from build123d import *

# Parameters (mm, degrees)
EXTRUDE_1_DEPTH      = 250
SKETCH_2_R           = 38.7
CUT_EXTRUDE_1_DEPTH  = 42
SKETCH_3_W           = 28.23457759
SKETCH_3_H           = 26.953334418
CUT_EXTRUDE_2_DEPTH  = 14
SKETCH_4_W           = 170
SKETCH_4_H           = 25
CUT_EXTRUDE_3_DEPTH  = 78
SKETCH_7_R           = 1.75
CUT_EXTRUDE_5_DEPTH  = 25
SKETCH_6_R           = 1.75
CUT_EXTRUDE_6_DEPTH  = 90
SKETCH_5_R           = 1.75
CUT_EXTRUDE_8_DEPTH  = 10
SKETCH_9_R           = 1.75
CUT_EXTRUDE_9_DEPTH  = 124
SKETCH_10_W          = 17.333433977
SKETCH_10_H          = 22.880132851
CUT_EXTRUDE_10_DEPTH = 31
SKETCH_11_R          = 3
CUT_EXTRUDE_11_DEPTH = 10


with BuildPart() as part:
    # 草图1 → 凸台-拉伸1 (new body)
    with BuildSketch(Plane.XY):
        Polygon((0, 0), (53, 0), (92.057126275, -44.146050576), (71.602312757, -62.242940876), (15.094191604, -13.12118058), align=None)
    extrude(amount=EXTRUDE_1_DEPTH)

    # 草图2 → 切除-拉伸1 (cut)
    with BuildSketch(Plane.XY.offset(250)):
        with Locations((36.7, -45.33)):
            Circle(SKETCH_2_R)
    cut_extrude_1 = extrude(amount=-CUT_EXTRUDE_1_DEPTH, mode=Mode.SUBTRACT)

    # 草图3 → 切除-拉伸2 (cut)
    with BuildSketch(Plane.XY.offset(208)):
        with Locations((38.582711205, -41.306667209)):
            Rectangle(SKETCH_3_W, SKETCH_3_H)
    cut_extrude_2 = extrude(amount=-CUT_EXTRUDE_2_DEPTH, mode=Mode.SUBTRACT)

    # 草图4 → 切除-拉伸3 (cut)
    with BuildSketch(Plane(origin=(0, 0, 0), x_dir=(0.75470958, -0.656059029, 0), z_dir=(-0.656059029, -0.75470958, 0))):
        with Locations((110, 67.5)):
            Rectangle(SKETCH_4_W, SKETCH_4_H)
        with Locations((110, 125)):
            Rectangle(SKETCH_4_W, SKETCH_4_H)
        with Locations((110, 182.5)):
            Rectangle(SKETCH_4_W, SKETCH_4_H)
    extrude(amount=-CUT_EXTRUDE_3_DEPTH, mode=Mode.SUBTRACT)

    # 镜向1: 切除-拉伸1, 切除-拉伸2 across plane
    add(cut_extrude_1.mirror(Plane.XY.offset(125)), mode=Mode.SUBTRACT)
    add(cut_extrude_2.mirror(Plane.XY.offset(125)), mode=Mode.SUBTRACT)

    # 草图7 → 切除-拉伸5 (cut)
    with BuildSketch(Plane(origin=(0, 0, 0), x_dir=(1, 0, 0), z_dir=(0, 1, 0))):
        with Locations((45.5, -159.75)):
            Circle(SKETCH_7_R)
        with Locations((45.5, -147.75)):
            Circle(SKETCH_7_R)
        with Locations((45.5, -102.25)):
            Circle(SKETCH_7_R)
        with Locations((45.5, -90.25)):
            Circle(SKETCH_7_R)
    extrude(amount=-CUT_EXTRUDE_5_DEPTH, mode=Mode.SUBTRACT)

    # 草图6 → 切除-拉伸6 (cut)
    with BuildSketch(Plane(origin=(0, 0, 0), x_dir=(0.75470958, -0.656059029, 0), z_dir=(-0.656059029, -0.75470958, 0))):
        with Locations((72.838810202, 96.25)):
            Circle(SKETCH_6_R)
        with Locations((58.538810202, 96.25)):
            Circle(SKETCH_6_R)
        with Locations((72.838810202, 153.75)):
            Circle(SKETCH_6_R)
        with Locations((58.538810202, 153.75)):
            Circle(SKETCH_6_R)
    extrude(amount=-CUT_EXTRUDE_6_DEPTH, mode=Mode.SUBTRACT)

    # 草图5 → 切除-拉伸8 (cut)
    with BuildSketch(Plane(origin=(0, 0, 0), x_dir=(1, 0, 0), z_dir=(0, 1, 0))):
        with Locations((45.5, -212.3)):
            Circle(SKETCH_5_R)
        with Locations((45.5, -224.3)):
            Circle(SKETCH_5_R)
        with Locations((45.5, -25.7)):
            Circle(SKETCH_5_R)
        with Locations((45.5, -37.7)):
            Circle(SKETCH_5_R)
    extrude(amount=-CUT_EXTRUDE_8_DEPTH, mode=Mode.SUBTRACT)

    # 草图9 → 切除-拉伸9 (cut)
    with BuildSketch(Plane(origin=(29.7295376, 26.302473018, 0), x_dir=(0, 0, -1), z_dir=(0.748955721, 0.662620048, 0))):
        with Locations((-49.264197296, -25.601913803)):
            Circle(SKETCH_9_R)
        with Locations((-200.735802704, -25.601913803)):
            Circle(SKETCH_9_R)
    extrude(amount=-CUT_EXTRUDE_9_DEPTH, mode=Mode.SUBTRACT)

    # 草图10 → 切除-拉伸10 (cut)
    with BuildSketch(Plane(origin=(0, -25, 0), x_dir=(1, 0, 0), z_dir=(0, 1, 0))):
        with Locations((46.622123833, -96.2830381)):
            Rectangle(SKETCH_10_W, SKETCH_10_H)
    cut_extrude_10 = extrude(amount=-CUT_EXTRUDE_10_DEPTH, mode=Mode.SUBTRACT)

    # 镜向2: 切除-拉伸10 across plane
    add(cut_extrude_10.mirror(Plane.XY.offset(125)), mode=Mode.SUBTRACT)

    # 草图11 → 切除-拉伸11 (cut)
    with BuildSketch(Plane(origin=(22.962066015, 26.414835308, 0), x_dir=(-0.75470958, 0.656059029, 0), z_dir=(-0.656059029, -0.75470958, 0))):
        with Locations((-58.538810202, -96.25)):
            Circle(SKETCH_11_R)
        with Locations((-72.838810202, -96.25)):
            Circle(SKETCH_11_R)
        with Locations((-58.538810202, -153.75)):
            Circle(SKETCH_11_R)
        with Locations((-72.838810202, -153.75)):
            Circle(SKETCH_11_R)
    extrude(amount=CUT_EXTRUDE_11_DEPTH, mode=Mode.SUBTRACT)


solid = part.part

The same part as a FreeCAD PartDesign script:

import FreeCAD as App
import Part
import Sketcher

V = App.Vector
Q = App.Units.Quantity

doc = App.newDocument("Part")
body = doc.addObject("PartDesign::Body", "Body")

# Sketch on XY plane
sketch1 = body.newObject("Sketcher::SketchObject", "Sketch")
sketch1.AttachmentSupport = (doc.getObject("XY_Plane"), [""])
sketch1.MapMode = "FlatFace"
sketch1.addGeometry(Part.LineSegment(V(53, 0, 0), V(0, 0, 0)), False)
sketch1.addGeometry(Part.LineSegment(V(0, 0, 0), V(15.094192, -13.121181, 0)), False)
sketch1.addGeometry(Part.LineSegment(V(15.094192, -13.121181, 0), V(71.602313, -62.242941, 0)), False)
sketch1.addGeometry(Part.LineSegment(V(71.602313, -62.242941, 0), V(92.057126, -44.146051, 0)), False)
sketch1.addGeometry(Part.LineSegment(V(92.057126, -44.146051, 0), V(53, 0, 0)), False)
sketch1.addConstraint(Sketcher.Constraint("Coincident", 0, 2, 1, 1))
sketch1.addConstraint(Sketcher.Constraint("Coincident", 1, 2, 2, 1))
sketch1.addConstraint(Sketcher.Constraint("Coincident", 2, 2, 3, 1))
sketch1.addConstraint(Sketcher.Constraint("Coincident", 3, 2, 4, 1))
sketch1.addConstraint(Sketcher.Constraint("Coincident", 4, 2, 0, 1))
sketch1.addConstraint(Sketcher.Constraint("Horizontal", 0))
sketch1.addConstraint(Sketcher.Constraint("Coincident", 0, 2, -1, 1))
sketch1.addConstraint(Sketcher.Constraint("Parallel", 1, 2))
sketch1.addConstraint(Sketcher.Constraint("Perpendicular", 3, 4))
sketch1.addConstraint(Sketcher.Constraint("DistanceX", 0, 2, 0, 1, 53.0))
sketch1.addConstraint(Sketcher.Constraint("Angle", 1, Q("-41 deg")))
sketch1.addConstraint(Sketcher.Constraint("Distance", 1, 20.0))
sketch1.addConstraint(Sketcher.Constraint("Angle", 3, Q("41.5 deg")))
sketch1.addConstraint(Sketcher.Constraint("Distance", 3, 27.311112))
pad1 = body.newObject("PartDesign::Pad", "Pad")
pad1.Profile = sketch1
pad1.Length = 250

# Sketch on XY plane
sketch2 = body.newObject("Sketcher::SketchObject", "Sketch001")
sketch2.AttachmentSupport = (doc.getObject("XY_Plane"), [""])
sketch2.MapMode = "FlatFace"
sketch2.AttachmentOffset = App.Placement(V(0, 0, 250), App.Rotation())
sketch2.addGeometry(Part.Circle(V(36.7, -45.33, 0), V(0, 0, 1), 38.7), False)
sketch2.addConstraint(Sketcher.Constraint("Diameter", 0, 77.4))
sketch2.addConstraint(Sketcher.Constraint("DistanceX", -1, 1, 0, 3, 36.7))
sketch2.addConstraint(Sketcher.Constraint("DistanceY", 0, 3, -1, 1, 45.33))
pocket1 = body.newObject("PartDesign::Pocket", "Pocket")
pocket1.Profile = sketch2
pocket1.Length = 42

# Sketch on XY plane
sketch3 = body.newObject("Sketcher::SketchObject", "Sketch002")
sketch3.AttachmentSupport = (doc.getObject("XY_Plane"), [""])
sketch3.MapMode = "FlatFace"
sketch3.AttachmentOffset = App.Placement(V(0, 0, 208), App.Rotation())
sketch3.addGeometry(Part.LineSegment(V(24.465422, -27.83, 0), V(24.465422, -54.783334, 0)), False)
sketch3.addGeometry(Part.LineSegment(V(24.465422, -54.783334, 0), V(52.7, -54.783334, 0)), False)
sketch3.addGeometry(Part.LineSegment(V(52.7, -54.783334, 0), V(52.7, -27.83, 0)), False)
sketch3.addGeometry(Part.LineSegment(V(52.7, -27.83, 0), V(24.465422, -27.83, 0)), False)
sketch3.addConstraint(Sketcher.Constraint("Coincident", 0, 2, 1, 1))
sketch3.addConstraint(Sketcher.Constraint("Coincident", 1, 2, 2, 1))
sketch3.addConstraint(Sketcher.Constraint("Coincident", 2, 2, 3, 1))
sketch3.addConstraint(Sketcher.Constraint("Coincident", 3, 2, 0, 1))
sketch3.addConstraint(Sketcher.Constraint("Vertical", 0))
sketch3.addConstraint(Sketcher.Constraint("Horizontal", 1))
sketch3.addConstraint(Sketcher.Constraint("Vertical", 2))
sketch3.addConstraint(Sketcher.Constraint("Horizontal", 3))
sketch3.addConstraint(Sketcher.Constraint("DistanceX", -1, 1, 1, 2, 52.7))
sketch3.addConstraint(Sketcher.Constraint("DistanceY", 2, 2, -1, 1, 27.83))
sketch3.addConstraint(Sketcher.Constraint("DistanceX", 1, 1, 1, 2, 28.234578))
sketch3.addConstraint(Sketcher.Constraint("DistanceY", 0, 2, 0, 1, 26.953334))
pocket2 = body.newObject("PartDesign::Pocket", "Pocket001")
pocket2.Profile = sketch3
pocket2.Length = 14

# Sketch on an angled plane
sketch4 = body.newObject("Sketcher::SketchObject", "Sketch003")
sketch4.Placement = App.Placement(V(0, 0, 0), App.Rotation(V(0.75470958, -0.656059029, 0), V(0, 0, 1), V(-0.656059029, -0.75470958, 0), "ZXY"))
sketch4.addGeometry(Part.LineSegment(V(25, 80, 0), V(25, 55, 0)), False)
sketch4.addGeometry(Part.LineSegment(V(25, 55, 0), V(195, 55, 0)), False)
sketch4.addGeometry(Part.LineSegment(V(195, 55, 0), V(195, 80, 0)), False)
sketch4.addGeometry(Part.LineSegment(V(195, 80, 0), V(25, 80, 0)), False)
sketch4.addGeometry(Part.LineSegment(V(25, 137.5, 0), V(25, 112.5, 0)), False)
sketch4.addGeometry(Part.LineSegment(V(25, 112.5, 0), V(195, 112.5, 0)), False)
sketch4.addGeometry(Part.LineSegment(V(195, 112.5, 0), V(195, 137.5, 0)), False)
sketch4.addGeometry(Part.LineSegment(V(195, 137.5, 0), V(25, 137.5, 0)), False)
sketch4.addGeometry(Part.LineSegment(V(25, 195, 0), V(25, 170, 0)), False)
sketch4.addGeometry(Part.LineSegment(V(25, 170, 0), V(195, 170, 0)), False)
sketch4.addGeometry(Part.LineSegment(V(195, 170, 0), V(195, 195, 0)), False)
sketch4.addGeometry(Part.LineSegment(V(195, 195, 0), V(25, 195, 0)), False)
sketch4.addConstraint(Sketcher.Constraint("Coincident", 0, 2, 1, 1))
sketch4.addConstraint(Sketcher.Constraint("Coincident", 1, 2, 2, 1))
sketch4.addConstraint(Sketcher.Constraint("Coincident", 2, 2, 3, 1))
sketch4.addConstraint(Sketcher.Constraint("Coincident", 3, 2, 0, 1))
sketch4.addConstraint(Sketcher.Constraint("Coincident", 4, 2, 5, 1))
sketch4.addConstraint(Sketcher.Constraint("Coincident", 5, 2, 6, 1))
sketch4.addConstraint(Sketcher.Constraint("Coincident", 6, 2, 7, 1))
sketch4.addConstraint(Sketcher.Constraint("Coincident", 7, 2, 4, 1))
sketch4.addConstraint(Sketcher.Constraint("Coincident", 8, 2, 9, 1))
sketch4.addConstraint(Sketcher.Constraint("Coincident", 9, 2, 10, 1))
sketch4.addConstraint(Sketcher.Constraint("Coincident", 10, 2, 11, 1))
sketch4.addConstraint(Sketcher.Constraint("Coincident", 11, 2, 8, 1))
sketch4.addConstraint(Sketcher.Constraint("Vertical", 0))
sketch4.addConstraint(Sketcher.Constraint("Horizontal", 1))
sketch4.addConstraint(Sketcher.Constraint("Vertical", 2))
sketch4.addConstraint(Sketcher.Constraint("Horizontal", 3))
sketch4.addConstraint(Sketcher.Constraint("Vertical", 4))
sketch4.addConstraint(Sketcher.Constraint("Horizontal", 5))
sketch4.addConstraint(Sketcher.Constraint("Vertical", 6))
sketch4.addConstraint(Sketcher.Constraint("Horizontal", 7))
sketch4.addConstraint(Sketcher.Constraint("Vertical", 8))
sketch4.addConstraint(Sketcher.Constraint("Horizontal", 9))
sketch4.addConstraint(Sketcher.Constraint("Vertical", 10))
sketch4.addConstraint(Sketcher.Constraint("Horizontal", 11))
sketch4.addConstraint(Sketcher.Constraint("Vertical", 3, 2, 4, 2))
sketch4.addConstraint(Sketcher.Constraint("Vertical", 2, 2, 5, 2))
sketch4.addConstraint(Sketcher.Constraint("Vertical", 7, 2, 8, 2))
sketch4.addConstraint(Sketcher.Constraint("Vertical", 6, 2, 9, 2))
sketch4.addConstraint(Sketcher.Constraint("Equal", 2, 4))
sketch4.addConstraint(Sketcher.Constraint("Equal", 6, 8))
sketch4.addConstraint(Sketcher.Constraint("DistanceX", 1, 1, 1, 2, 170.0))
sketch4.addConstraint(Sketcher.Constraint("DistanceY", 0, 2, 0, 1, 25.0))
sketch4.addConstraint(Sketcher.Constraint("DistanceX", -1, 1, 0, 2, 25.0))
sketch4.addConstraint(Sketcher.Constraint("DistanceY", -1, 1, 0, 2, 55.0))
sketch4.addConstraint(Sketcher.Constraint("DistanceY", -1, 1, 8, 2, 170.0))
sketch4.addConstraint(Sketcher.Constraint("DistanceY", -1, 1, 4, 2, 112.5))
pocket3 = body.newObject("PartDesign::Pocket", "Pocket002")
pocket3.Profile = sketch4
pocket3.Length = 78
doc.recompute()

datumplane = body.newObject("PartDesign::Plane", "DatumPlane")
datumplane.AttachmentSupport = (doc.getObject("XY_Plane"), [""])
datumplane.MapMode = "FlatFace"
datumplane.AttachmentOffset = App.Placement(V(0, 0, 125), App.Rotation())
mirrored = body.newObject("PartDesign::Mirrored", "Mirrored")
mirrored.Originals = [pocket1, pocket2]
mirrored.MirrorPlane = (datumplane, [""])
body.Tip = mirrored

# Sketch on XZ plane
sketch5 = body.newObject("Sketcher::SketchObject", "Sketch004")
sketch5.AttachmentSupport = (doc.getObject("XZ_Plane"), [""])
sketch5.MapMode = "FlatFace"
sketch5.addGeometry(Part.Circle(V(45.5, 159.75, 0), V(0, 0, 1), 1.75), False)
sketch5.addGeometry(Part.Circle(V(45.5, 147.75, 0), V(0, 0, 1), 1.75), False)
sketch5.addGeometry(Part.Circle(V(45.5, 102.25, 0), V(0, 0, 1), 1.75), False)
sketch5.addGeometry(Part.Circle(V(45.5, 90.25, 0), V(0, 0, 1), 1.75), False)
sketch5.addConstraint(Sketcher.Constraint("Equal", 0, 1))
sketch5.addConstraint(Sketcher.Constraint("Equal", 1, 2))
sketch5.addConstraint(Sketcher.Constraint("Equal", 2, 3))
sketch5.addConstraint(Sketcher.Constraint("Vertical", 0, 3, 1, 3))
sketch5.addConstraint(Sketcher.Constraint("Vertical", 1, 3, 2, 3))
sketch5.addConstraint(Sketcher.Constraint("Vertical", 2, 3, 3, 3))
sketch5.addConstraint(Sketcher.Constraint("Diameter", 0, 3.5))
sketch5.addConstraint(Sketcher.Constraint("DistanceY", 1, 3, 0, 3, 12.0))
sketch5.addConstraint(Sketcher.Constraint("DistanceY", 3, 3, 2, 3, 12.0))
sketch5.addConstraint(Sketcher.Constraint("DistanceX", -1, 1, 0, 3, 45.5))
sketch5.addConstraint(Sketcher.Constraint("DistanceY", 2, 3, 1, 3, 45.5))
sketch5.addConstraint(Sketcher.Constraint("DistanceY", -1, 1, 0, 3, 159.75))
pocket4 = body.newObject("PartDesign::Pocket", "Pocket003")
pocket4.Profile = sketch5
pocket4.Length = 25
pocket4.Reversed = True

# Sketch on an angled plane
sketch6 = body.newObject("Sketcher::SketchObject", "Sketch005")
sketch6.Placement = App.Placement(V(0, 0, 0), App.Rotation(V(0.75470958, -0.656059029, 0), V(0, 0, 1), V(-0.656059029, -0.75470958, 0), "ZXY"))
sketch6.addGeometry(Part.Circle(V(72.83881, 96.25, 0), V(0, 0, 1), 1.75), False)
sketch6.addGeometry(Part.Circle(V(58.53881, 96.25, 0), V(0, 0, 1), 1.75), False)
sketch6.addGeometry(Part.Circle(V(72.83881, 153.75, 0), V(0, 0, 1), 1.75), False)
sketch6.addGeometry(Part.Circle(V(58.53881, 153.75, 0), V(0, 0, 1), 1.75), False)
sketch6.addConstraint(Sketcher.Constraint("Equal", 0, 1))
sketch6.addConstraint(Sketcher.Constraint("Equal", 1, 2))
sketch6.addConstraint(Sketcher.Constraint("Equal", 2, 3))
sketch6.addConstraint(Sketcher.Constraint("Horizontal", 0, 3, 1, 3))
sketch6.addConstraint(Sketcher.Constraint("Horizontal", 2, 3, 3, 3))
sketch6.addConstraint(Sketcher.Constraint("Vertical", 0, 3, 2, 3))
sketch6.addConstraint(Sketcher.Constraint("Vertical", 1, 3, 3, 3))
sketch6.addConstraint(Sketcher.Constraint("Diameter", 0, 3.5))
sketch6.addConstraint(Sketcher.Constraint("DistanceX", 1, 3, 0, 3, 14.3))
sketch6.addConstraint(Sketcher.Constraint("DistanceY", 0, 3, 2, 3, 57.5))
sketch6.addConstraint(Sketcher.Constraint("DistanceY", -1, 1, 0, 3, 96.25))
sketch6.addConstraint(Sketcher.Constraint("DistanceX", -1, 1, 0, 3, 72.83881))
pocket5 = body.newObject("PartDesign::Pocket", "Pocket004")
pocket5.Profile = sketch6
pocket5.Length = 90

# Sketch on XZ plane
sketch7 = body.newObject("Sketcher::SketchObject", "Sketch006")
sketch7.AttachmentSupport = (doc.getObject("XZ_Plane"), [""])
sketch7.MapMode = "FlatFace"
sketch7.addGeometry(Part.Circle(V(45.5, 212.3, 0), V(0, 0, 1), 1.75), False)
sketch7.addGeometry(Part.Circle(V(45.5, 224.3, 0), V(0, 0, 1), 1.75), False)
sketch7.addGeometry(Part.Circle(V(45.5, 25.7, 0), V(0, 0, 1), 1.75), False)
sketch7.addGeometry(Part.Circle(V(45.5, 37.7, 0), V(0, 0, 1), 1.75), False)
sketch7.addConstraint(Sketcher.Constraint("Equal", 0, 1))
sketch7.addConstraint(Sketcher.Constraint("Equal", 1, 2))
sketch7.addConstraint(Sketcher.Constraint("Equal", 2, 3))
sketch7.addConstraint(Sketcher.Constraint("Vertical", 0, 3, 1, 3))
sketch7.addConstraint(Sketcher.Constraint("Vertical", 1, 3, 2, 3))
sketch7.addConstraint(Sketcher.Constraint("Vertical", 2, 3, 3, 3))
sketch7.addConstraint(Sketcher.Constraint("Diameter", 0, 3.5))
sketch7.addConstraint(Sketcher.Constraint("DistanceY", 0, 3, 1, 3, 12.0))
sketch7.addConstraint(Sketcher.Constraint("DistanceY", 2, 3, 3, 3, 12.0))
sketch7.addConstraint(Sketcher.Constraint("DistanceX", -1, 1, 0, 3, 45.5))
sketch7.addConstraint(Sketcher.Constraint("DistanceY", -1, 1, 0, 3, 212.3))
sketch7.addConstraint(Sketcher.Constraint("DistanceY", -1, 1, 2, 3, 25.7))
pocket6 = body.newObject("PartDesign::Pocket", "Pocket005")
pocket6.Profile = sketch7
pocket6.Length = 10
pocket6.Reversed = True

# Sketch on an angled plane
sketch8 = body.newObject("Sketcher::SketchObject", "Sketch007")
sketch8.Placement = App.Placement(V(29.729538, 26.302473, 0), App.Rotation(V(0, 0, -1), V(-0.662620048, 0.748955721, 0), V(0.748955721, 0.662620048, 0), "ZXY"))
sketch8.addGeometry(Part.Circle(V(-49.264197, -25.601914, 0), V(0, 0, 1), 1.75), False)
sketch8.addGeometry(Part.Circle(V(-200.735803, -25.601914, 0), V(0, 0, 1), 1.75), False)
sketch8.addConstraint(Sketcher.Constraint("Equal", 0, 1))
sketch8.addConstraint(Sketcher.Constraint("Horizontal", 0, 3, 1, 3))
sketch8.addConstraint(Sketcher.Constraint("Diameter", 0, 3.5))
sketch8.addConstraint(Sketcher.Constraint("DistanceX", 0, 3, -1, 1, 49.264197))
sketch8.addConstraint(Sketcher.Constraint("DistanceY", 0, 3, -1, 1, 25.601914))
sketch8.addConstraint(Sketcher.Constraint("DistanceX", 1, 3, -1, 1, 200.735803))
pocket7 = body.newObject("PartDesign::Pocket", "Pocket006")
pocket7.Profile = sketch8
pocket7.Length = 124

# Sketch on XZ plane
sketch9 = body.newObject("Sketcher::SketchObject", "Sketch008")
sketch9.AttachmentSupport = (doc.getObject("XZ_Plane"), [""])
sketch9.MapMode = "FlatFace"
sketch9.AttachmentOffset = App.Placement(V(0, 0, 25), App.Rotation())
sketch9.addGeometry(Part.LineSegment(V(37.955407, 84.842972, 0), V(37.955407, 107.723105, 0)), False)
sketch9.addGeometry(Part.LineSegment(V(37.955407, 107.723105, 0), V(55.288841, 107.723105, 0)), False)
sketch9.addGeometry(Part.LineSegment(V(55.288841, 107.723105, 0), V(55.288841, 84.842972, 0)), False)
sketch9.addGeometry(Part.LineSegment(V(55.288841, 84.842972, 0), V(37.955407, 84.842972, 0)), False)
sketch9.addConstraint(Sketcher.Constraint("Coincident", 0, 2, 1, 1))
sketch9.addConstraint(Sketcher.Constraint("Coincident", 1, 2, 2, 1))
sketch9.addConstraint(Sketcher.Constraint("Coincident", 2, 2, 3, 1))
sketch9.addConstraint(Sketcher.Constraint("Coincident", 3, 2, 0, 1))
sketch9.addConstraint(Sketcher.Constraint("Vertical", 0))
sketch9.addConstraint(Sketcher.Constraint("Horizontal", 1))
sketch9.addConstraint(Sketcher.Constraint("Vertical", 2))
sketch9.addConstraint(Sketcher.Constraint("Horizontal", 3))
sketch9.addConstraint(Sketcher.Constraint("DistanceX", 1, 1, 1, 2, 17.333434))
sketch9.addConstraint(Sketcher.Constraint("DistanceY", 0, 1, 0, 2, 22.880133))
sketch9.addConstraint(Sketcher.Constraint("DistanceX", -1, 1, 1, 2, 55.288841))
sketch9.addConstraint(Sketcher.Constraint("DistanceY", -1, 1, 2, 2, 84.842972))
pocket8 = body.newObject("PartDesign::Pocket", "Pocket007")
pocket8.Profile = sketch9
pocket8.Length = 31
pocket8.Reversed = True
doc.recompute()

datumplane2 = body.newObject("PartDesign::Plane", "DatumPlane001")
datumplane2.AttachmentSupport = (doc.getObject("XY_Plane"), [""])
datumplane2.MapMode = "FlatFace"
datumplane2.AttachmentOffset = App.Placement(V(0, 0, 125), App.Rotation())
mirrored2 = body.newObject("PartDesign::Mirrored", "Mirrored001")
mirrored2.Originals = [pocket8]
mirrored2.MirrorPlane = (datumplane2, [""])
body.Tip = mirrored2

# Sketch on an angled plane
sketch10 = body.newObject("Sketcher::SketchObject", "Sketch009")
sketch10.Placement = App.Placement(V(22.962066, 26.414835, 0), App.Rotation(V(-0.75470958, 0.656059029, 0), V(0, 0, -1), V(-0.656059029, -0.75470958, 0), "ZXY"))
sketch10.addGeometry(Part.Circle(V(-58.53881, -96.25, 0), V(0, 0, 1), 3), False)
sketch10.addGeometry(Part.Circle(V(-72.83881, -96.25, 0), V(0, 0, 1), 3), False)
sketch10.addGeometry(Part.Circle(V(-58.53881, -153.75, 0), V(0, 0, 1), 3), False)
sketch10.addGeometry(Part.Circle(V(-72.83881, -153.75, 0), V(0, 0, 1), 3), False)
sketch10.addConstraint(Sketcher.Constraint("Equal", 0, 1))
sketch10.addConstraint(Sketcher.Constraint("Equal", 1, 2))
sketch10.addConstraint(Sketcher.Constraint("Equal", 2, 3))
sketch10.addConstraint(Sketcher.Constraint("Horizontal", 0, 3, 1, 3))
sketch10.addConstraint(Sketcher.Constraint("Horizontal", 2, 3, 3, 3))
sketch10.addConstraint(Sketcher.Constraint("Vertical", 0, 3, 2, 3))
sketch10.addConstraint(Sketcher.Constraint("Vertical", 1, 3, 3, 3))
sketch10.addConstraint(Sketcher.Constraint("Diameter", 0, 6.0))
sketch10.addConstraint(Sketcher.Constraint("DistanceX", 1, 3, 0, 3, 14.3))
sketch10.addConstraint(Sketcher.Constraint("DistanceY", 2, 3, 0, 3, 57.5))
sketch10.addConstraint(Sketcher.Constraint("DistanceY", 0, 3, -1, 1, 96.25))
sketch10.addConstraint(Sketcher.Constraint("DistanceX", 0, 3, -1, 1, 58.53881))
pocket9 = body.newObject("PartDesign::Pocket", "Pocket008")
pocket9.Profile = sketch10
pocket9.Length = 10
pocket9.Reversed = True

doc.recompute()
